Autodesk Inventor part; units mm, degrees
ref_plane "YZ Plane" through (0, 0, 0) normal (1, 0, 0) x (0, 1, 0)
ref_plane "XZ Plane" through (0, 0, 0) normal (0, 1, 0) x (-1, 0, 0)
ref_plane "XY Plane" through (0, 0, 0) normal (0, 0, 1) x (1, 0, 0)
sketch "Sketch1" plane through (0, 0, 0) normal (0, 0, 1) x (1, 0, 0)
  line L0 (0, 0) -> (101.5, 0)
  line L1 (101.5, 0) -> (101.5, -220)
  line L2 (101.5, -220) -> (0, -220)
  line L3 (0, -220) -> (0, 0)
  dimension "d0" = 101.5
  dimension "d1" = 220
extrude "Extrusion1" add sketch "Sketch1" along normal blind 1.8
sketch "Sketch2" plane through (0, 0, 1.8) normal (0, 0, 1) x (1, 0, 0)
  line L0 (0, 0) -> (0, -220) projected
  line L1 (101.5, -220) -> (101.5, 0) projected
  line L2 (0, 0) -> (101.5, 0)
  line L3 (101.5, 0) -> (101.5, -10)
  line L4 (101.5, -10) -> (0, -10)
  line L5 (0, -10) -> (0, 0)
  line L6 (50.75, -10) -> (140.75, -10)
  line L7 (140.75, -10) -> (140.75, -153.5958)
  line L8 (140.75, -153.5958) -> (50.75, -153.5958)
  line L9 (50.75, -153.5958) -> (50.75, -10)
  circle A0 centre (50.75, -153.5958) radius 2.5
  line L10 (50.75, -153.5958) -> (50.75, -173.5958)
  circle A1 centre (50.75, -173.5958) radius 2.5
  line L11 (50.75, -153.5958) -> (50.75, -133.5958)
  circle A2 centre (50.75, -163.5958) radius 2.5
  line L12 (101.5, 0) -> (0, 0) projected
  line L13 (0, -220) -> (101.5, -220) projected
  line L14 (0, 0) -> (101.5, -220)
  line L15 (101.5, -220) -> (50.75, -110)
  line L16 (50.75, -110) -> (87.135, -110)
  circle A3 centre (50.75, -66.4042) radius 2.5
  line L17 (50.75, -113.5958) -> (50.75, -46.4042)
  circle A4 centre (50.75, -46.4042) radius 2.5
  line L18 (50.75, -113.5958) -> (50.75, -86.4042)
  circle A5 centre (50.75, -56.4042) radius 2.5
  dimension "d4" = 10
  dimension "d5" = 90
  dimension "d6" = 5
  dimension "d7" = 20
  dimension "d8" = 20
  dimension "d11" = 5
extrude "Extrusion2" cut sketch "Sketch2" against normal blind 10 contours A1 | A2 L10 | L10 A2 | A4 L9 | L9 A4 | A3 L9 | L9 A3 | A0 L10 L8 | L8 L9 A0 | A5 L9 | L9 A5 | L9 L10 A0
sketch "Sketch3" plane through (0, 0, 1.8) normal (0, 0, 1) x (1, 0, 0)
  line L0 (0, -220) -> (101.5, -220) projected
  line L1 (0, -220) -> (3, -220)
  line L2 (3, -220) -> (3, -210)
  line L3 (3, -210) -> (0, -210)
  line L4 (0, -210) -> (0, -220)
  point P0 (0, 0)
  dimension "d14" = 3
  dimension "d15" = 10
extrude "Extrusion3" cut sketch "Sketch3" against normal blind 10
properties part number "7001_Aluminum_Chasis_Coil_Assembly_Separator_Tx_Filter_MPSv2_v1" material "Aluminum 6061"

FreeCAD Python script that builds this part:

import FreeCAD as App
import Part
import Sketcher
Q = App.Units.Quantity

doc = App.newDocument("Part")
params = doc.addObject("Spreadsheet::Sheet", "Params")
for row, (alias, value) in enumerate([
    ("sketch1_height", "220 mm"),
    ("sketch1_width", "101.5 mm"),
    ("pad1_length", "1.8 mm"),
    ("sketch2_diameter", "5 mm"),
    ("pocket1_length", "10 mm"),
    ("sketch3_width", "3 mm"),
    ("sketch3_height", "10 mm"),
    ("pocket2_length", "10 mm"),
], start=1):
    params.set(f"A{row}", alias)
    params.set(f"B{row}", "=" + value)
    params.setAlias(f"B{row}", alias)

body = doc.addObject("PartDesign::Body", "Body")

# Sketch on XY plane
sketch1 = doc.addObject("Sketcher::SketchObject", "Sketch")
body.addObject(sketch1)
sketch1.AttachmentSupport = (doc.XY_Plane, [""])
sketch1.MapMode = "FlatFace"
sketch1.addGeometry(Part.LineSegment(App.Vector(102, 0, 0), App.Vector(0, 0, 0)), False)
sketch1.addGeometry(Part.LineSegment(App.Vector(0, 0, 0), App.Vector(0, -220, 0)), False)
sketch1.addGeometry(Part.LineSegment(App.Vector(0, -220, 0), App.Vector(102, -220, 0)), False)
sketch1.addGeometry(Part.LineSegment(App.Vector(102, -220, 0), App.Vector(102, 0, 0)), False)
sketch1.addConstraint(Sketcher.Constraint("Coincident", 0, 2, 1, 1))
sketch1.addConstraint(Sketcher.Constraint("Coincident", 1, 2, 2, 1))
sketch1.addConstraint(Sketcher.Constraint("Coincident", 2, 2, 3, 1))
sketch1.addConstraint(Sketcher.Constraint("Coincident", 3, 2, 0, 1))
sketch1.addConstraint(Sketcher.Constraint("Horizontal", 0))
sketch1.addConstraint(Sketcher.Constraint("Vertical", 1))
sketch1.addConstraint(Sketcher.Constraint("Horizontal", 2))
sketch1.addConstraint(Sketcher.Constraint("Vertical", 3))
sketch1.addConstraint(Sketcher.Constraint("Coincident", 0, 2, -1, 1))
sketch1.addConstraint(Sketcher.Constraint("DistanceY", 1, 2, 1, 1, Q("220 mm")))
sketch1.addConstraint(Sketcher.Constraint("DistanceX", 0, 2, 0, 1, Q("101.5 mm")))
sketch1.setExpression("Constraints[9]", "Params.sketch1_height")
sketch1.setExpression("Constraints[10]", "Params.sketch1_width")
pad1 = doc.addObject("PartDesign::Pad", "Pad")
body.addObject(pad1)
pad1.Profile = sketch1
pad1.setExpression("Length", "Params.pad1_length")

# Sketch on XY plane
sketch2 = doc.addObject("Sketcher::SketchObject", "Sketch001")
body.addObject(sketch2)
sketch2.AttachmentSupport = (doc.XY_Plane, [""])
sketch2.MapMode = "FlatFace"
sketch2.AttachmentOffset = App.Placement(App.Vector(0, 0, 1.8), App.Rotation())
sketch2.addGeometry(Part.Circle(App.Vector(50.8, -173.6, 0), App.Vector(0, 0, 1), 2.5), False)
sketch2.addGeometry(Part.Circle(App.Vector(50.8, -163.6, 0), App.Vector(0, 0, 1), 2.5), False)
sketch2.addGeometry(Part.Circle(App.Vector(50.8, -46.4, 0), App.Vector(0, 0, 1), 2.5), False)
sketch2.addGeometry(Part.Circle(App.Vector(50.8, -66.4, 0), App.Vector(0, 0, 1), 2.5), False)
sketch2.addGeometry(Part.Circle(App.Vector(50.8, -153.6, 0), App.Vector(0, 0, 1), 2.5), False)
sketch2.addGeometry(Part.Circle(App.Vector(50.8, -56.4, 0), App.Vector(0, 0, 1), 2.5), False)
sketch2.addConstraint(Sketcher.Constraint("Equal", 0, 1))
sketch2.addConstraint(Sketcher.Constraint("Equal", 1, 2))
sketch2.addConstraint(Sketcher.Constraint("Equal", 2, 3))
sketch2.addConstraint(Sketcher.Constraint("Equal", 3, 4))
sketch2.addConstraint(Sketcher.Constraint("Equal", 4, 5))
sketch2.addConstraint(Sketcher.Constraint("Vertical", 0, 3, 1, 3))
sketch2.addConstraint(Sketcher.Constraint("Vertical", 1, 3, 2, 3))
sketch2.addConstraint(Sketcher.Constraint("Vertical", 2, 3, 3, 3))
sketch2.addConstraint(Sketcher.Constraint("Vertical", 3, 3, 4, 3))
sketch2.addConstraint(Sketcher.Constraint("Vertical", 4, 3, 5, 3))
sketch2.addConstraint(Sketcher.Constraint("Diameter", 0, Q("5 mm")))
sketch2.addConstraint(Sketcher.Constraint("DistanceY", 0, 3, 1, 3, Q("10 mm")))
sketch2.addConstraint(Sketcher.Constraint("DistanceY", 3, 3, 2, 3, Q("20 mm")))
sketch2.addConstraint(Sketcher.Constraint("DistanceY", 1, 3, 4, 3, Q("10 mm")))
sketch2.addConstraint(Sketcher.Constraint("DistanceY", 5, 3, 2, 3, Q("10 mm")))
sketch2.addConstraint(Sketcher.Constraint("DistanceX", -1, 1, 0, 3, Q("50.75 mm")))
sketch2.addConstraint(Sketcher.Constraint("DistanceY", 0, 3, -1, 1, Q("173.5958 mm")))
sketch2.addConstraint(Sketcher.Constraint("DistanceY", 2, 3, -1, 1, Q("46.4042 mm")))
sketch2.setExpression("Constraints[10]", "Params.sketch2_diameter")
pocket1 = doc.addObject("PartDesign::Pocket", "Pocket")
body.addObject(pocket1)
pocket1.Profile = sketch2
pocket1.setExpression("Length", "Params.pocket1_length")

# Sketch on XY plane
sketch3 = doc.addObject("Sketcher::SketchObject", "Sketch002")
body.addObject(sketch3)
sketch3.AttachmentSupport = (doc.XY_Plane, [""])
sketch3.MapMode = "FlatFace"
sketch3.AttachmentOffset = App.Placement(App.Vector(0, 0, 1.8), App.Rotation())
sketch3.addGeometry(Part.LineSegment(App.Vector(0, -210, 0), App.Vector(0, -220, 0)), False)
sketch3.addGeometry(Part.LineSegment(App.Vector(0, -220, 0), App.Vector(3, -220, 0)), False)
sketch3.addGeometry(Part.LineSegment(App.Vector(3, -220, 0), App.Vector(3, -210, 0)), False)
sketch3.addGeometry(Part.LineSegment(App.Vector(3, -210, 0), App.Vector(0, -210, 0)), False)
sketch3.addConstraint(Sketcher.Constraint("Coincident", 0, 2, 1, 1))
sketch3.addConstraint(Sketcher.Constraint("Coincident", 1, 2, 2, 1))
sketch3.addConstraint(Sketcher.Constraint("Coincident", 2, 2, 3, 1))
sketch3.addConstraint(Sketcher.Constraint("Coincident", 3, 2, 0, 1))
sketch3.addConstraint(Sketcher.Constraint("Vertical", 0))
sketch3.addConstraint(Sketcher.Constraint("Horizontal", 1))
sketch3.addConstraint(Sketcher.Constraint("Vertical", 2))
sketch3.addConstraint(Sketcher.Constraint("Horizontal", 3))
sketch3.addConstraint(Sketcher.Constraint("PointOnObject", 0, 2, -2))
sketch3.addConstraint(Sketcher.Constraint("DistanceX", 1, 1, 1, 2, Q("3 mm")))
sketch3.addConstraint(Sketcher.Constraint("DistanceY", 0, 2, 0, 1, Q("10 mm")))
sketch3.addConstraint(Sketcher.Constraint("DistanceY", 0, 2, -1, 1, Q("220 mm")))
sketch3.setExpression("Constraints[9]", "Params.sketch3_width")
sketch3.setExpression("Constraints[10]", "Params.sketch3_height")
pocket2 = doc.addObject("PartDesign::Pocket", "Pocket001")
body.addObject(pocket2)
pocket2.Profile = sketch3
pocket2.setExpression("Length", "Params.pocket2_length")

doc.recompute()
